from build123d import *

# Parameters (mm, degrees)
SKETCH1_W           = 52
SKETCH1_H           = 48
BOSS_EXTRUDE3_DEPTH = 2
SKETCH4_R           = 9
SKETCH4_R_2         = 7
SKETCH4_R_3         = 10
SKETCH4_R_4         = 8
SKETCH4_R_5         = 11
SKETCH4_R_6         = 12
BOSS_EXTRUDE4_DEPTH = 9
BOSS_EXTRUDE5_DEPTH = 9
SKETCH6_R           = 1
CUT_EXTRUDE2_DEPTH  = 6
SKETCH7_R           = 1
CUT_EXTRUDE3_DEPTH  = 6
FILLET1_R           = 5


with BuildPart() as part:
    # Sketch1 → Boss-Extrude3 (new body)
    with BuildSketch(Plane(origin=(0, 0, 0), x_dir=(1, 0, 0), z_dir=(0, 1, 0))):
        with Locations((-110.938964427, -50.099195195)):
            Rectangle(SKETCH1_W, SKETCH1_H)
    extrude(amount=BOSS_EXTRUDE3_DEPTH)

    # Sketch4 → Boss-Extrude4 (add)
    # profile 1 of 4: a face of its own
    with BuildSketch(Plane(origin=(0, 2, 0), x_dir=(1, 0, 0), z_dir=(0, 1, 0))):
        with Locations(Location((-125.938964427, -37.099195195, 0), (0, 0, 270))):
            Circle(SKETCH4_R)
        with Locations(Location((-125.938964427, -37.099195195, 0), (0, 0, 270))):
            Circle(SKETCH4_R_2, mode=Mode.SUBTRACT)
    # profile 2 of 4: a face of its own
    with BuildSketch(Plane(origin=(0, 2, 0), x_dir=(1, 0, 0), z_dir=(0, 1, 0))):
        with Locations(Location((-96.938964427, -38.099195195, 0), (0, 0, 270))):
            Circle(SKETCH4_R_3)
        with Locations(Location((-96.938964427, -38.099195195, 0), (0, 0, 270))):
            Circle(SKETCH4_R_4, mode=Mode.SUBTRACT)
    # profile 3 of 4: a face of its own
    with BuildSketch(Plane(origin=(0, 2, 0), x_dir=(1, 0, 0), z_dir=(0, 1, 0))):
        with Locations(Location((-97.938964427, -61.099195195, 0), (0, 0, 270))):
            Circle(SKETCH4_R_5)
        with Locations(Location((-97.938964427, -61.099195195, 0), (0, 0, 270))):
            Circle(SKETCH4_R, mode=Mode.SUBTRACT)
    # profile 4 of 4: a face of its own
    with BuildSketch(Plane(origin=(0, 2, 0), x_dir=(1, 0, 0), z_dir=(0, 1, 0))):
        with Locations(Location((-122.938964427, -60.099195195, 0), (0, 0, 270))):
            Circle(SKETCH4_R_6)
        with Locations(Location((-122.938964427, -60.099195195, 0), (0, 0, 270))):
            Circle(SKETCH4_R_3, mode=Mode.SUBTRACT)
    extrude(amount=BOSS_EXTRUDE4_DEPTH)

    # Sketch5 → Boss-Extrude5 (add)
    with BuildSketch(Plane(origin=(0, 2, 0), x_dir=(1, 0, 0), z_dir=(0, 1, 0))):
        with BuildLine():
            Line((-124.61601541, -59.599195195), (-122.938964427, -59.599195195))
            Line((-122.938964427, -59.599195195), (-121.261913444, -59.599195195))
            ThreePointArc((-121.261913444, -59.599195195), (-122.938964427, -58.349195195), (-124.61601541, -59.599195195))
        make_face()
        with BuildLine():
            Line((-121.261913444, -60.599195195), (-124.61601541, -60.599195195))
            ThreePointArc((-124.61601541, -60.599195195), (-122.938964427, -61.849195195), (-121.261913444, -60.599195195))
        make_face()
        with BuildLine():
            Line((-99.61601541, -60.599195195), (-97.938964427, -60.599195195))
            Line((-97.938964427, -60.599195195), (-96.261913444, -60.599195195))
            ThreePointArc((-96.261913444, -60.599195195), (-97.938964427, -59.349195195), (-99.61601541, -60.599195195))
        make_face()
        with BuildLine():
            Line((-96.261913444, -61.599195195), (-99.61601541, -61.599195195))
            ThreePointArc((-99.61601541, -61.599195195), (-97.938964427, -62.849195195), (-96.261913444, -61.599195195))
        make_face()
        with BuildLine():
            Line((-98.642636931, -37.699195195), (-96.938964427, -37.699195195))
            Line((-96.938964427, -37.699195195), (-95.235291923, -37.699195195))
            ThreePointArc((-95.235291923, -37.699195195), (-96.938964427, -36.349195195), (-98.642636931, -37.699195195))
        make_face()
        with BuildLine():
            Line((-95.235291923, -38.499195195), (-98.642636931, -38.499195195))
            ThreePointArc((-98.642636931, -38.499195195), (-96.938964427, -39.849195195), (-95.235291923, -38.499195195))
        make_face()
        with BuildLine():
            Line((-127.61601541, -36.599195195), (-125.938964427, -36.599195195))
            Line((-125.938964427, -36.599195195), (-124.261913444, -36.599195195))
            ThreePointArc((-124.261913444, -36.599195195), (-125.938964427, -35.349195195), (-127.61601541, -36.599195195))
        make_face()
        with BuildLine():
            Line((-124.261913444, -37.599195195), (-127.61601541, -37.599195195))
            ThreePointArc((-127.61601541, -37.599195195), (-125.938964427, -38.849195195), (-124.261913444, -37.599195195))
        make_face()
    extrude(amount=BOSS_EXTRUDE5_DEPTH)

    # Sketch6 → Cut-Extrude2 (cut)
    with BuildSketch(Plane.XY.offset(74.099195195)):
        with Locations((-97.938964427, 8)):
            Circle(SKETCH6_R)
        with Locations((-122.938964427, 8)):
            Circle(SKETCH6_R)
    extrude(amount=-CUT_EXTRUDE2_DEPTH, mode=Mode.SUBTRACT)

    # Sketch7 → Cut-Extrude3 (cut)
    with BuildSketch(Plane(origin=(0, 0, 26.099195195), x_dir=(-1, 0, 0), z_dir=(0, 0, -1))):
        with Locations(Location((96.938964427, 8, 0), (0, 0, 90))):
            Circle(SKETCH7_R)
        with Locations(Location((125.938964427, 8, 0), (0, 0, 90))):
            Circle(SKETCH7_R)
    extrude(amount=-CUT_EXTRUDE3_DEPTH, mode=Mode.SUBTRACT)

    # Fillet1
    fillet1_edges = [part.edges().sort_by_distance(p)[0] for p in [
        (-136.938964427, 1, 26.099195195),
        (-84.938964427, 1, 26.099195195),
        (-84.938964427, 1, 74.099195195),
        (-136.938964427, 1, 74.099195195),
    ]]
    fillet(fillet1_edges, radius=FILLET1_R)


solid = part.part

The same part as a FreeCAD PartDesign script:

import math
import FreeCAD as App
import Part
import Sketcher

V = App.Vector


def edges_at(feature, points):
    """Names of the edges that pass closest to the given points."""
    edges = feature.Shape.Edges
    near = lambda p: min(range(len(edges)), key=lambda i: edges[i].distToShape(Part.Vertex(*p))[0])
    return sorted({f"Edge{near(p) + 1}" for p in points})

doc = App.newDocument("Part")
body = doc.addObject("PartDesign::Body", "Body")

# Sketch on XZ plane
sketch1 = doc.addObject("Sketcher::SketchObject", "Sketch")
body.addObject(sketch1)
sketch1.AttachmentSupport = (doc.XZ_Plane, [""])
sketch1.MapMode = "FlatFace"
sketch1.addGeometry(Part.LineSegment(V(-137, 26, 0), V(-137, 74, 0)), False)
sketch1.addGeometry(Part.LineSegment(V(-137, 74, 0), V(-85, 74, 0)), False)
sketch1.addGeometry(Part.LineSegment(V(-85, 74, 0), V(-85, 26, 0)), False)
sketch1.addGeometry(Part.LineSegment(V(-85, 26, 0), V(-137, 26, 0)), False)
sketch1.addConstraint(Sketcher.Constraint("Coincident", 0, 2, 1, 1))
sketch1.addConstraint(Sketcher.Constraint("Coincident", 1, 2, 2, 1))
sketch1.addConstraint(Sketcher.Constraint("Coincident", 2, 2, 3, 1))
sketch1.addConstraint(Sketcher.Constraint("Coincident", 3, 2, 0, 1))
sketch1.addConstraint(Sketcher.Constraint("Vertical", 0))
sketch1.addConstraint(Sketcher.Constraint("Horizontal", 1))
sketch1.addConstraint(Sketcher.Constraint("Vertical", 2))
sketch1.addConstraint(Sketcher.Constraint("Horizontal", 3))
sketch1.addConstraint(Sketcher.Constraint("DistanceX", 1, 1, 1, 2, 52.0))
sketch1.addConstraint(Sketcher.Constraint("DistanceY", 0, 1, 0, 2, 48.0))
sketch1.addConstraint(Sketcher.Constraint("DistanceX", 0, 2, -1, 1, 136.938964))
sketch1.addConstraint(Sketcher.Constraint("DistanceY", -1, 1, 0, 2, 74.099195))
pad1 = doc.addObject("PartDesign::Pad", "Pad")
body.addObject(pad1)
pad1.Profile = sketch1
pad1.Length = 2
pad1.Reversed = True

# Sketch on XZ plane
sketch2 = doc.addObject("Sketcher::SketchObject", "Sketch001")
body.addObject(sketch2)
sketch2.AttachmentSupport = (doc.XZ_Plane, [""])
sketch2.MapMode = "FlatFace"
sketch2.AttachmentOffset = App.Placement(V(0, 0, -2), App.Rotation())
sketch2.addGeometry(Part.Circle(V(-126, 37, 0), V(0, 0, 1), 9), False)
sketch2.addGeometry(Part.Circle(V(-126, 37, 0), V(0, 0, 1), 7), False)
sketch2.addGeometry(Part.Circle(V(-97, 38, 0), V(0, 0, 1), 10), False)
sketch2.addGeometry(Part.Circle(V(-97, 38, 0), V(0, 0, 1), 8), False)
sketch2.addGeometry(Part.Circle(V(-98, 61, 0), V(0, 0, 1), 11), False)
sketch2.addGeometry(Part.Circle(V(-98, 61, 0), V(0, 0, 1), 9), False)
sketch2.addGeometry(Part.Circle(V(-123, 60, 0), V(0, 0, 1), 12), False)
sketch2.addGeometry(Part.Circle(V(-123, 60, 0), V(0, 0, 1), 10), False)
sketch2.addConstraint(Sketcher.Constraint("Coincident", 1, 3, 0, 3))
sketch2.addConstraint(Sketcher.Constraint("Coincident", 3, 3, 2, 3))
sketch2.addConstraint(Sketcher.Constraint("Coincident", 5, 3, 4, 3))
sketch2.addConstraint(Sketcher.Constraint("Coincident", 7, 3, 6, 3))
sketch2.addConstraint(Sketcher.Constraint("Equal", 0, 5))
sketch2.addConstraint(Sketcher.Constraint("Equal", 2, 7))
sketch2.addConstraint(Sketcher.Constraint("Diameter", 0, 18.0))
sketch2.addConstraint(Sketcher.Constraint("Diameter", 1, 14.0))
sketch2.addConstraint(Sketcher.Constraint("Diameter", 2, 20.0))
sketch2.addConstraint(Sketcher.Constraint("Diameter", 3, 16.0))
sketch2.addConstraint(Sketcher.Constraint("Diameter", 4, 22.0))
sketch2.addConstraint(Sketcher.Constraint("Diameter", 6, 24.0))
sketch2.addConstraint(Sketcher.Constraint("DistanceX", 0, 3, 2, 3, 29.0))
sketch2.addConstraint(Sketcher.Constraint("DistanceY", 0, 3, 2, 3, 1.0))
sketch2.addConstraint(Sketcher.Constraint("DistanceX", 4, 3, 2, 3, 1.0))
sketch2.addConstraint(Sketcher.Constraint("DistanceY", 2, 3, 4, 3, 23.0))
sketch2.addConstraint(Sketcher.Constraint("DistanceX", 0, 3, 6, 3, 3.0))
sketch2.addConstraint(Sketcher.Constraint("DistanceY", 0, 3, 6, 3, 23.0))
sketch2.addConstraint(Sketcher.Constraint("DistanceX", 0, 3, -1, 1, 125.938964))
sketch2.addConstraint(Sketcher.Constraint("DistanceY", -1, 1, 0, 3, 37.099195))
pad2 = doc.addObject("PartDesign::Pad", "Pad001")
body.addObject(pad2)
pad2.Profile = sketch2
pad2.Length = 9
pad2.Reversed = True

# Sketch on XZ plane
sketch3 = doc.addObject("Sketcher::SketchObject", "Sketch002")
body.addObject(sketch3)
sketch3.AttachmentSupport = (doc.XZ_Plane, [""])
sketch3.MapMode = "FlatFace"
sketch3.AttachmentOffset = App.Placement(V(0, 0, -2), App.Rotation())
sketch3.addGeometry(Part.LineSegment(V(-124.6, 59.6, 0), V(-121.3, 59.6, 0)), False)
sketch3.addGeometry(Part.ArcOfCircle(Part.Circle(V(-122.9, 60.1, 0), V(0, 0, 1), 1.8), math.radians(-163), math.radians(-17)), False)
sketch3.addGeometry(Part.LineSegment(V(-121.3, 60.6, 0), V(-124.6, 60.6, 0)), False)
sketch3.addGeometry(Part.ArcOfCircle(Part.Circle(V(-122.9, 60.1, 0), V(0, 0, 1), 1.8), math.radians(17), math.radians(163)), False)
sketch3.addGeometry(Part.LineSegment(V(-99.6, 60.6, 0), V(-96.3, 60.6, 0)), False)
sketch3.addGeometry(Part.ArcOfCircle(Part.Circle(V(-97.9, 61.1, 0), V(0, 0, 1), 1.8), math.radians(-163), math.radians(-17)), False)
sketch3.addGeometry(Part.LineSegment(V(-96.3, 61.6, 0), V(-99.6, 61.6, 0)), False)
sketch3.addGeometry(Part.ArcOfCircle(Part.Circle(V(-97.9, 61.1, 0), V(0, 0, 1), 1.8), math.radians(17), math.radians(163)), False)
sketch3.addGeometry(Part.LineSegment(V(-98.6, 37.7, 0), V(-95.2, 37.7, 0)), False)
sketch3.addGeometry(Part.ArcOfCircle(Part.Circle(V(-96.9, 38.1, 0), V(0, 0, 1), 1.8), math.radians(-167), math.radians(-13)), False)
sketch3.addGeometry(Part.LineSegment(V(-95.2, 38.5, 0), V(-98.6, 38.5, 0)), False)
sketch3.addGeometry(Part.ArcOfCircle(Part.Circle(V(-96.9, 38.1, 0), V(0, 0, 1), 1.8), math.radians(13), math.radians(167)), False)
sketch3.addGeometry(Part.LineSegment(V(-127.6, 36.6, 0), V(-124.3, 36.6, 0)), False)
sketch3.addGeometry(Part.ArcOfCircle(Part.Circle(V(-125.9, 37.1, 0), V(0, 0, 1), 1.8), math.radians(-163), math.radians(-17)), False)
sketch3.addGeometry(Part.LineSegment(V(-124.3, 37.6, 0), V(-127.6, 37.6, 0)), False)
sketch3.addGeometry(Part.ArcOfCircle(Part.Circle(V(-125.9, 37.1, 0), V(0, 0, 1), 1.8), math.radians(17), math.radians(163)), False)
sketch3.addConstraint(Sketcher.Constraint("Coincident", 0, 1, 1, 1))
sketch3.addConstraint(Sketcher.Constraint("Coincident", 1, 2, 0, 2))
sketch3.addConstraint(Sketcher.Constraint("Coincident", 2, 1, 3, 1))
sketch3.addConstraint(Sketcher.Constraint("Coincident", 3, 2, 2, 2))
sketch3.addConstraint(Sketcher.Constraint("Coincident", 4, 1, 5, 1))
sketch3.addConstraint(Sketcher.Constraint("Coincident", 5, 2, 4, 2))
sketch3.addConstraint(Sketcher.Constraint("Coincident", 6, 1, 7, 1))
sketch3.addConstraint(Sketcher.Constraint("Coincident", 7, 2, 6, 2))
sketch3.addConstraint(Sketcher.Constraint("Coincident", 8, 1, 9, 1))
sketch3.addConstraint(Sketcher.Constraint("Coincident", 9, 2, 8, 2))
sketch3.addConstraint(Sketcher.Constraint("Coincident", 10, 1, 11, 1))
sketch3.addConstraint(Sketcher.Constraint("Coincident", 11, 2, 10, 2))
sketch3.addConstraint(Sketcher.Constraint("Coincident", 12, 1, 13, 1))
sketch3.addConstraint(Sketcher.Constraint("Coincident", 13, 2, 12, 2))
sketch3.addConstraint(Sketcher.Constraint("Coincident", 14, 1, 15, 1))
sketch3.addConstraint(Sketcher.Constraint("Coincident", 15, 2, 14, 2))
sketch3.addConstraint(Sketcher.Constraint("Horizontal", 0))
sketch3.addConstraint(Sketcher.Constraint("Horizontal", 2))
sketch3.addConstraint(Sketcher.Constraint("Horizontal", 4))
sketch3.addConstraint(Sketcher.Constraint("Horizontal", 6))
sketch3.addConstraint(Sketcher.Constraint("Horizontal", 8))
sketch3.addConstraint(Sketcher.Constraint("Horizontal", 10))
sketch3.addConstraint(Sketcher.Constraint("Horizontal", 12))
sketch3.addConstraint(Sketcher.Constraint("Horizontal", 14))
sketch3.addConstraint(Sketcher.Constraint("Coincident", 3, 3, 1, 3))
sketch3.addConstraint(Sketcher.Constraint("Coincident", 7, 3, 5, 3))
sketch3.addConstraint(Sketcher.Constraint("Coincident", 11, 3, 9, 3))
sketch3.addConstraint(Sketcher.Constraint("Coincident", 15, 3, 13, 3))
sketch3.addConstraint(Sketcher.Constraint("Equal", 1, 3))
sketch3.addConstraint(Sketcher.Constraint("Equal", 3, 5))
sketch3.addConstraint(Sketcher.Constraint("Equal", 5, 7))
sketch3.addConstraint(Sketcher.Constraint("Equal", 7, 9))
sketch3.addConstraint(Sketcher.Constraint("Equal", 9, 11))
sketch3.addConstraint(Sketcher.Constraint("Equal", 11, 13))
sketch3.addConstraint(Sketcher.Constraint("Equal", 13, 15))
sketch3.addConstraint(Sketcher.Constraint("Horizontal", 3, 2, 4, 1))
sketch3.addConstraint(Sketcher.Constraint("Vertical", 1, 2, 2, 1))
sketch3.addConstraint(Sketcher.Constraint("Vertical", 5, 2, 6, 1))
sketch3.addConstraint(Sketcher.Constraint("Vertical", 9, 2, 10, 1))
sketch3.addConstraint(Sketcher.Constraint("Vertical", 13, 2, 14, 1))
sketch3.addConstraint(Sketcher.Constraint("Equal", 2, 4))
sketch3.addConstraint(Sketcher.Constraint("Equal", 6, 12))
sketch3.addConstraint(Sketcher.Constraint("Radius", 1, 1.75))
sketch3.addConstraint(Sketcher.Constraint("DistanceX", 1, 3, 5, 3, 25.0))
sketch3.addConstraint(Sketcher.Constraint("DistanceY", 1, 3, 5, 3, 1.0))
sketch3.addConstraint(Sketcher.Constraint("DistanceX", 5, 3, 9, 3, 1.0))
sketch3.addConstraint(Sketcher.Constraint("DistanceY", 9, 3, 5, 3, 23.0))
sketch3.addConstraint(Sketcher.Constraint("DistanceX", 13, 3, 1, 3, 3.0))
sketch3.addConstraint(Sketcher.Constraint("DistanceY", 13, 3, 1, 3, 23.0))
sketch3.addConstraint(Sketcher.Constraint("DistanceY", 8, 1, 9, 3, 0.4))
sketch3.addConstraint(Sketcher.Constraint("DistanceX", 9, 2, -1, 1, 95.235292))
sketch3.addConstraint(Sketcher.Constraint("DistanceY", -1, 1, 1, 3, 60.099195))
pad3 = doc.addObject("PartDesign::Pad", "Pad002")
body.addObject(pad3)
pad3.Profile = sketch3
pad3.Length = 9
pad3.Reversed = True

# Sketch on XY plane
sketch4 = doc.addObject("Sketcher::SketchObject", "Sketch003")
body.addObject(sketch4)
sketch4.AttachmentSupport = (doc.XY_Plane, [""])
sketch4.MapMode = "FlatFace"
sketch4.AttachmentOffset = App.Placement(V(0, 0, 74.099195), App.Rotation())
sketch4.addGeometry(Part.Circle(V(-97.9, 8, 0), V(0, 0, 1), 1), False)
sketch4.addGeometry(Part.Circle(V(-122.9, 8, 0), V(0, 0, 1), 1), False)
sketch4.addConstraint(Sketcher.Constraint("Equal", 0, 1))
sketch4.addConstraint(Sketcher.Constraint("Horizontal", 0, 3, 1, 3))
sketch4.addConstraint(Sketcher.Constraint("Diameter", 0, 2.0))
sketch4.addConstraint(Sketcher.Constraint("DistanceY", -1, 1, 0, 3, 8.0))
sketch4.addConstraint(Sketcher.Constraint("DistanceX", 1, 3, 0, 3, 25.0))
sketch4.addConstraint(Sketcher.Constraint("DistanceX", 0, 3, -1, 1, 97.938964))
pocket1 = doc.addObject("PartDesign::Pocket", "Pocket")
body.addObject(pocket1)
pocket1.Profile = sketch4
pocket1.Length = 6

# Sketch on XY plane
sketch5 = doc.addObject("Sketcher::SketchObject", "Sketch004")
body.addObject(sketch5)
sketch5.AttachmentSupport = (doc.XY_Plane, [""])
sketch5.MapMode = "FlatFace"
sketch5.AttachmentOffset = App.Placement(V(0, 0, 26.099195), App.Rotation())
sketch5.addGeometry(Part.Circle(V(-96.9, 8, 0), V(0, 0, 1), 1), False)
sketch5.addGeometry(Part.Circle(V(-125.9, 8, 0), V(0, 0, 1), 1), False)
sketch5.addConstraint(Sketcher.Constraint("Equal", 0, 1))
sketch5.addConstraint(Sketcher.Constraint("Horizontal", 0, 3, 1, 3))
sketch5.addConstraint(Sketcher.Constraint("Diameter", 0, 2.0))
sketch5.addConstraint(Sketcher.Constraint("DistanceY", -1, 1, 0, 3, 8.0))
sketch5.addConstraint(Sketcher.Constraint("DistanceX", 1, 3, 0, 3, 29.0))
sketch5.addConstraint(Sketcher.Constraint("DistanceX", 0, 3, -1, 1, 96.938964))
pocket2 = doc.addObject("PartDesign::Pocket", "Pocket001")
body.addObject(pocket2)
pocket2.Profile = sketch5
pocket2.Length = 6
pocket2.Reversed = True
doc.recompute()

fillet = doc.addObject("PartDesign::Fillet", "Fillet")
body.addObject(fillet)
fillet.Base = (pocket2, edges_at(pocket2, [
    (-136.939, 1, 26.099),
    (-84.939, 1, 26.099),
    (-84.939, 1, 74.099),
    (-136.939, 1, 74.099),
]))
fillet.Radius = 5

doc.recompute()
